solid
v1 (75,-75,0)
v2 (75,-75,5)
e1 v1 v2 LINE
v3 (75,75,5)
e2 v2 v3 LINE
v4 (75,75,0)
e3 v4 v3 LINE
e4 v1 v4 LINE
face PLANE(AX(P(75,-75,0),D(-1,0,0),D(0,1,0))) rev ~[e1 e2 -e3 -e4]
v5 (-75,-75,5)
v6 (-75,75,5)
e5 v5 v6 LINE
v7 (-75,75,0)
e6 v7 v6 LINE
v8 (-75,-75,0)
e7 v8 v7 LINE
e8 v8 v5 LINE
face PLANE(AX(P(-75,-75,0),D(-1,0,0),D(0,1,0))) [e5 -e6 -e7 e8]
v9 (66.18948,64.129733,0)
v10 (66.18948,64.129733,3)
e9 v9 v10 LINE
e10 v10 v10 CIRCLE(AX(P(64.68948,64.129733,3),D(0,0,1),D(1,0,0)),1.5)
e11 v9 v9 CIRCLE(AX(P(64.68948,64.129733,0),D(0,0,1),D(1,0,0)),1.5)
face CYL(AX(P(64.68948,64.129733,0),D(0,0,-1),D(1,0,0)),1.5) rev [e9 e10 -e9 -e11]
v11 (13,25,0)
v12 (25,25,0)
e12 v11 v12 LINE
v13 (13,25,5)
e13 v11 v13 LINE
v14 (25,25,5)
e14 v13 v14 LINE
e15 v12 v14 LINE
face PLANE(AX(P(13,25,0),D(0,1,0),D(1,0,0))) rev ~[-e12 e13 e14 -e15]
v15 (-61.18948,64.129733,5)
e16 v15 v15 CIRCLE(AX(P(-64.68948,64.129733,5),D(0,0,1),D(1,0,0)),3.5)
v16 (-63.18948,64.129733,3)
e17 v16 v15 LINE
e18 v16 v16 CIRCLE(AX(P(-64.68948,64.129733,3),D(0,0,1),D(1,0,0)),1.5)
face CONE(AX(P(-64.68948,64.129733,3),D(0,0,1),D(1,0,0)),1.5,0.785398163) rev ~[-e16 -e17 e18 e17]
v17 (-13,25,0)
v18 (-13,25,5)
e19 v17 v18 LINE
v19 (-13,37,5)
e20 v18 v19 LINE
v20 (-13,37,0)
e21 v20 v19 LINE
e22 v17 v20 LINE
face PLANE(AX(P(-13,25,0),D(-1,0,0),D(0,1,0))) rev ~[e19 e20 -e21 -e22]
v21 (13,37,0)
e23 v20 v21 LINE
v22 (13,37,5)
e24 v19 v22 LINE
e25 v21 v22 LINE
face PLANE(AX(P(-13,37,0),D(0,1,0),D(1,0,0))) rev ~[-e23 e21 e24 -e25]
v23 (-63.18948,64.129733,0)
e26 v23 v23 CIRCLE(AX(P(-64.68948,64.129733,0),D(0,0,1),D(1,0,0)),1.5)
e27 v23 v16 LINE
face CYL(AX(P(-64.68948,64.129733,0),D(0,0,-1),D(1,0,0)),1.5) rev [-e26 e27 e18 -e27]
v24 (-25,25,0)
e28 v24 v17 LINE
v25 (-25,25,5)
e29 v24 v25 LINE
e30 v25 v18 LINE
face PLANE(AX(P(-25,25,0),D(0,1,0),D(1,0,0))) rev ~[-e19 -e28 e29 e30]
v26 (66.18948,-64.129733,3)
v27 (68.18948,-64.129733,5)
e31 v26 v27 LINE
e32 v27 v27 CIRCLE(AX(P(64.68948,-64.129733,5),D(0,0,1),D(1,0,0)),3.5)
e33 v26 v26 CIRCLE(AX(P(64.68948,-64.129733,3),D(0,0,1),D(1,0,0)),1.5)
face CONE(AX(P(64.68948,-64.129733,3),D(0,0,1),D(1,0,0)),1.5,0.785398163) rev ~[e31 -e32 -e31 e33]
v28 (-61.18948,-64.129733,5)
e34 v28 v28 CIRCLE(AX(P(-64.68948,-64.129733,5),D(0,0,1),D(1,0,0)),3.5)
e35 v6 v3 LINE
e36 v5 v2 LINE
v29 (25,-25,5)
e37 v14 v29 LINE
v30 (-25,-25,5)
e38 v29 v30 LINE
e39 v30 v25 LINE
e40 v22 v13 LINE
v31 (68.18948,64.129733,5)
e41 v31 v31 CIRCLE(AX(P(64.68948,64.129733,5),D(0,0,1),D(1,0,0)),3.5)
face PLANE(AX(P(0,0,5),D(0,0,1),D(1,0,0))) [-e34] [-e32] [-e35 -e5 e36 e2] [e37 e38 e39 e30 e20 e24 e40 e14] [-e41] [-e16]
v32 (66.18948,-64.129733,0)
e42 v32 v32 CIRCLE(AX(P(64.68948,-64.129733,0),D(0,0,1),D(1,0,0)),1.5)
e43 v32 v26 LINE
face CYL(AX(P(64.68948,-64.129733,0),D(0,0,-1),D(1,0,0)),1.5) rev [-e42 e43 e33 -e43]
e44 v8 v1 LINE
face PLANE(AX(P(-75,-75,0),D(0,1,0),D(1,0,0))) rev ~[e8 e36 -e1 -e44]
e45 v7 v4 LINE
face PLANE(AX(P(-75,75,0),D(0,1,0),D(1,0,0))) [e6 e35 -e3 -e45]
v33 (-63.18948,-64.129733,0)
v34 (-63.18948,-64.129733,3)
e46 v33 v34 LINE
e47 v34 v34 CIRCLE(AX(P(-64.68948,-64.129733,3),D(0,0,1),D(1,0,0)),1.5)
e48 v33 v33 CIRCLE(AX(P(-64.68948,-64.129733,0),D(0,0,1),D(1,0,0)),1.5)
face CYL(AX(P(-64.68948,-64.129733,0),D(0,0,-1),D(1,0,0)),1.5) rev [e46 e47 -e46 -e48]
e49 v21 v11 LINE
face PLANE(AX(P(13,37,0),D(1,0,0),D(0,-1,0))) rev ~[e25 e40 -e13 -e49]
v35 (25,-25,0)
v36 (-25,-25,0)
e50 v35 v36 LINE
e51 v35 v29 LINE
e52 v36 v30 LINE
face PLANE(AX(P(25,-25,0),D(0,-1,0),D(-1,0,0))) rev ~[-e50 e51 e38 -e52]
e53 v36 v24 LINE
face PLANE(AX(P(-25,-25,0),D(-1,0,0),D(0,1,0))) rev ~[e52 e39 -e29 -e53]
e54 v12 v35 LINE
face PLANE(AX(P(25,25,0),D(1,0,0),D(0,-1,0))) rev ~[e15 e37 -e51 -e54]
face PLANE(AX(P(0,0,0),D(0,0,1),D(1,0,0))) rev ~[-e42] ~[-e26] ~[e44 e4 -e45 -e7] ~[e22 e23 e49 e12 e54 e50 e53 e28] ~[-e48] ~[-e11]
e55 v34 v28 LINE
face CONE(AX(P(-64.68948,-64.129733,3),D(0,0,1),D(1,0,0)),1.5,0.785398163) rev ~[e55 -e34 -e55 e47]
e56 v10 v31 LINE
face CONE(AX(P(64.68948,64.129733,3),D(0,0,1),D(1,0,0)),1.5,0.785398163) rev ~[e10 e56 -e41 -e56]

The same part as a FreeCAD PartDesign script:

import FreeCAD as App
import Part
import Sketcher
Q = App.Units.Quantity


def edges_at(feature, points):
    """Names of the edges that pass closest to the given points."""
    edges = feature.Shape.Edges
    near = lambda p: min(range(len(edges)), key=lambda i: edges[i].distToShape(Part.Vertex(*p))[0])
    return sorted({f"Edge{near(p) + 1}" for p in points})

doc = App.newDocument("Part")
body = doc.addObject("PartDesign::Body", "Body")

sketch1 = doc.addObject("Sketcher::SketchObject", "Sketch")
body.addObject(sketch1)
sketch1.AttachmentSupport = (doc.XY_Plane, [""])
sketch1.MapMode = "FlatFace"
sketch1.addGeometry([
    Part.LineSegment(App.Vector(-75, 75, 0), App.Vector(-75, -75, 0)),
    Part.LineSegment(App.Vector(-75, -75, 0), App.Vector(75, -75, 0)),
    Part.LineSegment(App.Vector(75, -75, 0), App.Vector(75, 75, 0)),
    Part.LineSegment(App.Vector(75, 75, 0), App.Vector(-75, 75, 0)),
    Part.Circle(App.Vector(-64.7, -64.1, 0), App.Vector(0, 0, 1), 1.5),
    Part.Circle(App.Vector(64.7, -64.1, 0), App.Vector(0, 0, 1), 1.5),
    Part.Circle(App.Vector(-64.7, 64.1, 0), App.Vector(0, 0, 1), 1.5),
    Part.LineSegment(App.Vector(25, -25, 0), App.Vector(-25, -25, 0)),
    Part.LineSegment(App.Vector(-25, -25, 0), App.Vector(-25, 25, 0)),
    Part.LineSegment(App.Vector(-25, 25, 0), App.Vector(-13, 25, 0)),
    Part.LineSegment(App.Vector(-13, 25, 0), App.Vector(-13, 37, 0)),
    Part.LineSegment(App.Vector(-13, 37, 0), App.Vector(13, 37, 0)),
    Part.LineSegment(App.Vector(13, 37, 0), App.Vector(13, 25, 0)),
    Part.LineSegment(App.Vector(13, 25, 0), App.Vector(25, 25, 0)),
    Part.LineSegment(App.Vector(25, 25, 0), App.Vector(25, -25, 0)),
    Part.Circle(App.Vector(64.7, 64.1, 0), App.Vector(0, 0, 1), 1.5),
], False)
sketch1.addConstraint([
    Sketcher.Constraint("Coincident", 0, 2, 1, 1),
    Sketcher.Constraint("Coincident", 1, 2, 2, 1),
    Sketcher.Constraint("Coincident", 2, 2, 3, 1),
    Sketcher.Constraint("Coincident", 3, 2, 0, 1),
    Sketcher.Constraint("Coincident", 7, 2, 8, 1),
    Sketcher.Constraint("Coincident", 8, 2, 9, 1),
    Sketcher.Constraint("Coincident", 9, 2, 10, 1),
    Sketcher.Constraint("Coincident", 10, 2, 11, 1),
    Sketcher.Constraint("Coincident", 11, 2, 12, 1),
    Sketcher.Constraint("Coincident", 12, 2, 13, 1),
    Sketcher.Constraint("Coincident", 13, 2, 14, 1),
    Sketcher.Constraint("Coincident", 14, 2, 7, 1),
    Sketcher.Constraint("Vertical", 0),
    Sketcher.Constraint("Horizontal", 1),
    Sketcher.Constraint("Vertical", 2),
    Sketcher.Constraint("Horizontal", 3),
    Sketcher.Constraint("Horizontal", 7),
    Sketcher.Constraint("Vertical", 8),
    Sketcher.Constraint("Horizontal", 9),
    Sketcher.Constraint("Vertical", 10),
    Sketcher.Constraint("Horizontal", 11),
    Sketcher.Constraint("Vertical", 12),
    Sketcher.Constraint("Horizontal", 13),
    Sketcher.Constraint("Vertical", 14),
    Sketcher.Constraint("Equal", 4, 5),
    Sketcher.Constraint("Equal", 5, 6),
    Sketcher.Constraint("Equal", 6, 15),
    Sketcher.Constraint("Symmetric", 5, 3, 6, 3, -1, 1),
    Sketcher.Constraint("Symmetric", 4, 3, 15, 3, -1, 1),
    Sketcher.Constraint("Symmetric", 0, 2, 2, 2, -1, 1),
    Sketcher.Constraint("Symmetric", 7, 2, 13, 2, -1, 1),
    Sketcher.Constraint("Symmetric", 4, 3, 5, 3, -2),
    Sketcher.Constraint("Symmetric", 9, 2, 12, 2, -2),
    Sketcher.Constraint("Equal", 3, 0),
    Sketcher.Constraint("Equal", 7, 8),
    Sketcher.Constraint("Equal", 13, 10),
    Sketcher.Constraint("Diameter", 4, Q("3 mm")),
    Sketcher.Constraint("DistanceX", 1, 1, 1, 2, Q("150 mm")),
    Sketcher.Constraint("DistanceX", 7, 2, 7, 1, Q("50 mm")),
    Sketcher.Constraint("DistanceX", 9, 1, 9, 2, Q("12 mm")),
    Sketcher.Constraint("DistanceX", 4, 3, -1, 1, Q("64.68948 mm")),
    Sketcher.Constraint("DistanceY", 4, 3, -1, 1, Q("64.129733 mm")),
])
pad1 = doc.addObject("PartDesign::Pad", "Pad")
body.addObject(pad1)
pad1.Profile = sketch1
pad1.Length = 5
doc.recompute()

chamfer = doc.addObject("PartDesign::Chamfer", "Chamfer")
body.addObject(chamfer)
chamfer.Base = (pad1, edges_at(pad1, [
    (-66.189, 64.13, 5),
    (-66.189, -64.13, 5),
    (63.189, -64.13, 5),
    (63.189, 64.13, 5),
]))
chamfer.Size = 2

doc.recompute()
